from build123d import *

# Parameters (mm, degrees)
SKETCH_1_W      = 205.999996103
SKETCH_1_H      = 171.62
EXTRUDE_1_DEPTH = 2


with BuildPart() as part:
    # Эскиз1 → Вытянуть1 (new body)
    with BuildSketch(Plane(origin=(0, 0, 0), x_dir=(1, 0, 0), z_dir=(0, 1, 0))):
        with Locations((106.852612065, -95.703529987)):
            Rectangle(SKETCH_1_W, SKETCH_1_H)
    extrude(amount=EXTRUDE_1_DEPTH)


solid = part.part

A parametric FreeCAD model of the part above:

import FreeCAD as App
import Part
import Sketcher


def add_polygon(sketch, points):
    """Adds a closed chain of lines whose ends are joined by coincident constraints."""
    first, n = sketch.GeometryCount, len(points)
    for a, b in zip(points, points[1:] + points[:1]):
        sketch.addGeometry(Part.LineSegment(App.Vector(*a, 0), App.Vector(*b, 0)), False)
    for i in range(n):
        sketch.addConstraint(Sketcher.Constraint("Coincident", first + i, 2, first + (i + 1) % n, 1))

doc = App.newDocument("Part")
body = doc.addObject("PartDesign::Body", "Body")

sketch1 = body.newObject("Sketcher::SketchObject", "Sketch")
sketch1.AttachmentSupport = (doc.getObject("XZ_Plane"), [""])
sketch1.MapMode = "FlatFace"
add_polygon(sketch1, [(4, 10), (4, 182), (210, 182), (210, 10)])
sketch1.addConstraint([
    Sketcher.Constraint("Vertical", 0),
    Sketcher.Constraint("Horizontal", 1),
    Sketcher.Constraint("Vertical", 2),
    Sketcher.Constraint("Horizontal", 3),
    Sketcher.Constraint("DistanceY", 0, 1, 0, 2, 171.62),
    Sketcher.Constraint("DistanceX", 1, 1, 1, 2, 205.999996),
    Sketcher.Constraint("DistanceY", -1, 1, 0, 2, 181.51353),
    Sketcher.Constraint("DistanceX", -1, 1, 1, 2, 209.85261),
])
pad1 = body.newObject("PartDesign::Pad", "Pad")
pad1.Profile = sketch1
pad1.Length = 2
pad1.Reversed = True

doc.recompute()
